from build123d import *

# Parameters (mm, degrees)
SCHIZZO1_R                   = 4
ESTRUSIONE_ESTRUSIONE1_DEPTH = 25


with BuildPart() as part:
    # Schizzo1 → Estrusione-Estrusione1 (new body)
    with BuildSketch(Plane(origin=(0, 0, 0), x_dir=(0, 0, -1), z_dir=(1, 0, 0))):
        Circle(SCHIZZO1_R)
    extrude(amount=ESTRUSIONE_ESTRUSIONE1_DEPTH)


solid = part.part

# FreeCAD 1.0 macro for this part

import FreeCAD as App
import Part
import Sketcher

V = App.Vector
Q = App.Units.Quantity

doc = App.newDocument("Part")
params = doc.addObject("Spreadsheet::Sheet", "Params")
for row, (alias, value) in enumerate([
    ("sketch1_diameter", "8 mm"),
    ("pad1_length", "25 mm"),
], start=1):
    params.set(f"A{row}", alias)
    params.set(f"B{row}", "=" + value)
    params.setAlias(f"B{row}", alias)

body = doc.addObject("PartDesign::Body", "Body")

# Sketch on YZ plane
sketch1 = doc.addObject("Sketcher::SketchObject", "Sketch")
body.addObject(sketch1)
sketch1.AttachmentSupport = (doc.YZ_Plane, [""])
sketch1.MapMode = "FlatFace"
sketch1.addGeometry(Part.Circle(V(0, 0, 0), V(0, 0, 1), 4), False)
sketch1.addConstraint(Sketcher.Constraint("Coincident", 0, 3, -1, 1))
sketch1.addConstraint(Sketcher.Constraint("Diameter", 0, Q("8 mm")))
sketch1.setExpression("Constraints[1]", "Params.sketch1_diameter")
pad1 = doc.addObject("PartDesign::Pad", "Pad")
body.addObject(pad1)
pad1.Profile = sketch1
pad1.setExpression("Length", "Params.pad1_length")

doc.recompute()
